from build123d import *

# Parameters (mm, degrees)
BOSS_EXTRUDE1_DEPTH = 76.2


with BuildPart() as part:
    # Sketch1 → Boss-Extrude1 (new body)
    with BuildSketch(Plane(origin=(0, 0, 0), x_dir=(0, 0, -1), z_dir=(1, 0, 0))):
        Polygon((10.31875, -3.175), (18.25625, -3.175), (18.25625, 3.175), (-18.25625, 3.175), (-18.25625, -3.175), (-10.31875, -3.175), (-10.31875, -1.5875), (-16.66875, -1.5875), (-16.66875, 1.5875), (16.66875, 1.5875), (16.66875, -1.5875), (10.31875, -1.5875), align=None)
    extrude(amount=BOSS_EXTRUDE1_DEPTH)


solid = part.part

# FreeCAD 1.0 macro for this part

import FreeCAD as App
import Part
import Sketcher
Q = App.Units.Quantity


def add_polygon(sketch, points):
    """Adds a closed chain of lines whose ends are joined by coincident constraints."""
    first, n = sketch.GeometryCount, len(points)
    for a, b in zip(points, points[1:] + points[:1]):
        sketch.addGeometry(Part.LineSegment(App.Vector(*a, 0), App.Vector(*b, 0)), False)
    for i in range(n):
        sketch.addConstraint(Sketcher.Constraint("Coincident", first + i, 2, first + (i + 1) % n, 1))

doc = App.newDocument("Part")
body = doc.addObject("PartDesign::Body", "Body")

# Sketch on YZ plane
sketch1 = body.newObject("Sketcher::SketchObject", "Sketch")
sketch1.AttachmentSupport = (doc.getObject("YZ_Plane"), [""])
sketch1.MapMode = "FlatFace"
add_polygon(sketch1, [(-3.2, -10.3), (-3.2, -18.3), (3.2, -18.3), (3.2, 18.3), (-3.2, 18.3), (-3.2, 10.3), (-1.6, 10.3), (-1.6, 16.7), (1.6, 16.7), (1.6, -16.7), (-1.6, -16.7), (-1.6, -10.3)])  # lines 0-11
sketch1.addConstraint(Sketcher.Constraint("Vertical", 0))
sketch1.addConstraint(Sketcher.Constraint("Horizontal", 1))
sketch1.addConstraint(Sketcher.Constraint("Vertical", 2))
sketch1.addConstraint(Sketcher.Constraint("Horizontal", 3))
sketch1.addConstraint(Sketcher.Constraint("Vertical", 4))
sketch1.addConstraint(Sketcher.Constraint("Horizontal", 5))
sketch1.addConstraint(Sketcher.Constraint("Vertical", 6))
sketch1.addConstraint(Sketcher.Constraint("Horizontal", 7))
sketch1.addConstraint(Sketcher.Constraint("Vertical", 8))
sketch1.addConstraint(Sketcher.Constraint("Horizontal", 9))
sketch1.addConstraint(Sketcher.Constraint("Vertical", 10))
sketch1.addConstraint(Sketcher.Constraint("Horizontal", 11))
sketch1.addConstraint(Sketcher.Constraint("Symmetric", 0, 2, 2, 2, -1, 1))
sketch1.addConstraint(Sketcher.Constraint("Symmetric", 6, 2, 8, 2, -1, 1))
sketch1.addConstraint(Sketcher.Constraint("Symmetric", 5, 2, 10, 2, -1))
sketch1.addConstraint(Sketcher.Constraint("Vertical", 0, 2, 3, 2))
sketch1.addConstraint(Sketcher.Constraint("Equal", 3, 6))
sketch1.addConstraint(Sketcher.Constraint("DistanceX", 1, 1, 1, 2, Q("0.25 in")))
sketch1.addConstraint(Sketcher.Constraint("DistanceX", 5, 1, 5, 2, Q("0.0625 in")))
sketch1.addConstraint(Sketcher.Constraint("DistanceY", 0, 2, 0, 1, Q("0.3125 in")))
sketch1.addConstraint(Sketcher.Constraint("DistanceY", 2, 1, 2, 2, Q("1.4375 in")))
pad1 = body.newObject("PartDesign::Pad", "Pad")
pad1.Profile = sketch1
pad1.Length = Q("3 in")

doc.recompute()
